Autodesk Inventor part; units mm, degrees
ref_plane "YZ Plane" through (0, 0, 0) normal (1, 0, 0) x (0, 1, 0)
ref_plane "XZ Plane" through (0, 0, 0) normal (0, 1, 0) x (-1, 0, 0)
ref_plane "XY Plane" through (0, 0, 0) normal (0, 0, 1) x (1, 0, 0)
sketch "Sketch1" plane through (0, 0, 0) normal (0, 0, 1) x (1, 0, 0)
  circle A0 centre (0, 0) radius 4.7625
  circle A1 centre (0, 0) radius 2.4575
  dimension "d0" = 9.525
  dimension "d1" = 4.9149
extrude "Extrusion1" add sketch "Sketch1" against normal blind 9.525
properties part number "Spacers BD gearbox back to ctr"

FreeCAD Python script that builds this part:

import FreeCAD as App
import Part
import Sketcher
Q = App.Units.Quantity

doc = App.newDocument("Part")
body = doc.addObject("PartDesign::Body", "Body")

# Sketch on XY plane
sketch1 = doc.addObject("Sketcher::SketchObject", "Sketch")
body.addObject(sketch1)
sketch1.AttachmentSupport = (doc.XY_Plane, [""])
sketch1.MapMode = "FlatFace"
sketch1.addGeometry([
    Part.Circle(App.Vector(0, 0, 0), App.Vector(0, 0, 1), 4.8),
    Part.Circle(App.Vector(0, 0, 0), App.Vector(0, 0, 1), 2.5),
], False)
sketch1.addConstraint([
    Sketcher.Constraint("Coincident", 0, 3, -1, 1),
    Sketcher.Constraint("Coincident", 1, 3, -1, 1),
    Sketcher.Constraint("Diameter", 0, Q("0.375 in")),
    Sketcher.Constraint("Diameter", 1, Q("0.1935 in")),
])
pad1 = doc.addObject("PartDesign::Pad", "Pad")
body.addObject(pad1)
pad1.Profile = sketch1
pad1.Length = Q("0.375 in")
pad1.Reversed = True

doc.recompute()
